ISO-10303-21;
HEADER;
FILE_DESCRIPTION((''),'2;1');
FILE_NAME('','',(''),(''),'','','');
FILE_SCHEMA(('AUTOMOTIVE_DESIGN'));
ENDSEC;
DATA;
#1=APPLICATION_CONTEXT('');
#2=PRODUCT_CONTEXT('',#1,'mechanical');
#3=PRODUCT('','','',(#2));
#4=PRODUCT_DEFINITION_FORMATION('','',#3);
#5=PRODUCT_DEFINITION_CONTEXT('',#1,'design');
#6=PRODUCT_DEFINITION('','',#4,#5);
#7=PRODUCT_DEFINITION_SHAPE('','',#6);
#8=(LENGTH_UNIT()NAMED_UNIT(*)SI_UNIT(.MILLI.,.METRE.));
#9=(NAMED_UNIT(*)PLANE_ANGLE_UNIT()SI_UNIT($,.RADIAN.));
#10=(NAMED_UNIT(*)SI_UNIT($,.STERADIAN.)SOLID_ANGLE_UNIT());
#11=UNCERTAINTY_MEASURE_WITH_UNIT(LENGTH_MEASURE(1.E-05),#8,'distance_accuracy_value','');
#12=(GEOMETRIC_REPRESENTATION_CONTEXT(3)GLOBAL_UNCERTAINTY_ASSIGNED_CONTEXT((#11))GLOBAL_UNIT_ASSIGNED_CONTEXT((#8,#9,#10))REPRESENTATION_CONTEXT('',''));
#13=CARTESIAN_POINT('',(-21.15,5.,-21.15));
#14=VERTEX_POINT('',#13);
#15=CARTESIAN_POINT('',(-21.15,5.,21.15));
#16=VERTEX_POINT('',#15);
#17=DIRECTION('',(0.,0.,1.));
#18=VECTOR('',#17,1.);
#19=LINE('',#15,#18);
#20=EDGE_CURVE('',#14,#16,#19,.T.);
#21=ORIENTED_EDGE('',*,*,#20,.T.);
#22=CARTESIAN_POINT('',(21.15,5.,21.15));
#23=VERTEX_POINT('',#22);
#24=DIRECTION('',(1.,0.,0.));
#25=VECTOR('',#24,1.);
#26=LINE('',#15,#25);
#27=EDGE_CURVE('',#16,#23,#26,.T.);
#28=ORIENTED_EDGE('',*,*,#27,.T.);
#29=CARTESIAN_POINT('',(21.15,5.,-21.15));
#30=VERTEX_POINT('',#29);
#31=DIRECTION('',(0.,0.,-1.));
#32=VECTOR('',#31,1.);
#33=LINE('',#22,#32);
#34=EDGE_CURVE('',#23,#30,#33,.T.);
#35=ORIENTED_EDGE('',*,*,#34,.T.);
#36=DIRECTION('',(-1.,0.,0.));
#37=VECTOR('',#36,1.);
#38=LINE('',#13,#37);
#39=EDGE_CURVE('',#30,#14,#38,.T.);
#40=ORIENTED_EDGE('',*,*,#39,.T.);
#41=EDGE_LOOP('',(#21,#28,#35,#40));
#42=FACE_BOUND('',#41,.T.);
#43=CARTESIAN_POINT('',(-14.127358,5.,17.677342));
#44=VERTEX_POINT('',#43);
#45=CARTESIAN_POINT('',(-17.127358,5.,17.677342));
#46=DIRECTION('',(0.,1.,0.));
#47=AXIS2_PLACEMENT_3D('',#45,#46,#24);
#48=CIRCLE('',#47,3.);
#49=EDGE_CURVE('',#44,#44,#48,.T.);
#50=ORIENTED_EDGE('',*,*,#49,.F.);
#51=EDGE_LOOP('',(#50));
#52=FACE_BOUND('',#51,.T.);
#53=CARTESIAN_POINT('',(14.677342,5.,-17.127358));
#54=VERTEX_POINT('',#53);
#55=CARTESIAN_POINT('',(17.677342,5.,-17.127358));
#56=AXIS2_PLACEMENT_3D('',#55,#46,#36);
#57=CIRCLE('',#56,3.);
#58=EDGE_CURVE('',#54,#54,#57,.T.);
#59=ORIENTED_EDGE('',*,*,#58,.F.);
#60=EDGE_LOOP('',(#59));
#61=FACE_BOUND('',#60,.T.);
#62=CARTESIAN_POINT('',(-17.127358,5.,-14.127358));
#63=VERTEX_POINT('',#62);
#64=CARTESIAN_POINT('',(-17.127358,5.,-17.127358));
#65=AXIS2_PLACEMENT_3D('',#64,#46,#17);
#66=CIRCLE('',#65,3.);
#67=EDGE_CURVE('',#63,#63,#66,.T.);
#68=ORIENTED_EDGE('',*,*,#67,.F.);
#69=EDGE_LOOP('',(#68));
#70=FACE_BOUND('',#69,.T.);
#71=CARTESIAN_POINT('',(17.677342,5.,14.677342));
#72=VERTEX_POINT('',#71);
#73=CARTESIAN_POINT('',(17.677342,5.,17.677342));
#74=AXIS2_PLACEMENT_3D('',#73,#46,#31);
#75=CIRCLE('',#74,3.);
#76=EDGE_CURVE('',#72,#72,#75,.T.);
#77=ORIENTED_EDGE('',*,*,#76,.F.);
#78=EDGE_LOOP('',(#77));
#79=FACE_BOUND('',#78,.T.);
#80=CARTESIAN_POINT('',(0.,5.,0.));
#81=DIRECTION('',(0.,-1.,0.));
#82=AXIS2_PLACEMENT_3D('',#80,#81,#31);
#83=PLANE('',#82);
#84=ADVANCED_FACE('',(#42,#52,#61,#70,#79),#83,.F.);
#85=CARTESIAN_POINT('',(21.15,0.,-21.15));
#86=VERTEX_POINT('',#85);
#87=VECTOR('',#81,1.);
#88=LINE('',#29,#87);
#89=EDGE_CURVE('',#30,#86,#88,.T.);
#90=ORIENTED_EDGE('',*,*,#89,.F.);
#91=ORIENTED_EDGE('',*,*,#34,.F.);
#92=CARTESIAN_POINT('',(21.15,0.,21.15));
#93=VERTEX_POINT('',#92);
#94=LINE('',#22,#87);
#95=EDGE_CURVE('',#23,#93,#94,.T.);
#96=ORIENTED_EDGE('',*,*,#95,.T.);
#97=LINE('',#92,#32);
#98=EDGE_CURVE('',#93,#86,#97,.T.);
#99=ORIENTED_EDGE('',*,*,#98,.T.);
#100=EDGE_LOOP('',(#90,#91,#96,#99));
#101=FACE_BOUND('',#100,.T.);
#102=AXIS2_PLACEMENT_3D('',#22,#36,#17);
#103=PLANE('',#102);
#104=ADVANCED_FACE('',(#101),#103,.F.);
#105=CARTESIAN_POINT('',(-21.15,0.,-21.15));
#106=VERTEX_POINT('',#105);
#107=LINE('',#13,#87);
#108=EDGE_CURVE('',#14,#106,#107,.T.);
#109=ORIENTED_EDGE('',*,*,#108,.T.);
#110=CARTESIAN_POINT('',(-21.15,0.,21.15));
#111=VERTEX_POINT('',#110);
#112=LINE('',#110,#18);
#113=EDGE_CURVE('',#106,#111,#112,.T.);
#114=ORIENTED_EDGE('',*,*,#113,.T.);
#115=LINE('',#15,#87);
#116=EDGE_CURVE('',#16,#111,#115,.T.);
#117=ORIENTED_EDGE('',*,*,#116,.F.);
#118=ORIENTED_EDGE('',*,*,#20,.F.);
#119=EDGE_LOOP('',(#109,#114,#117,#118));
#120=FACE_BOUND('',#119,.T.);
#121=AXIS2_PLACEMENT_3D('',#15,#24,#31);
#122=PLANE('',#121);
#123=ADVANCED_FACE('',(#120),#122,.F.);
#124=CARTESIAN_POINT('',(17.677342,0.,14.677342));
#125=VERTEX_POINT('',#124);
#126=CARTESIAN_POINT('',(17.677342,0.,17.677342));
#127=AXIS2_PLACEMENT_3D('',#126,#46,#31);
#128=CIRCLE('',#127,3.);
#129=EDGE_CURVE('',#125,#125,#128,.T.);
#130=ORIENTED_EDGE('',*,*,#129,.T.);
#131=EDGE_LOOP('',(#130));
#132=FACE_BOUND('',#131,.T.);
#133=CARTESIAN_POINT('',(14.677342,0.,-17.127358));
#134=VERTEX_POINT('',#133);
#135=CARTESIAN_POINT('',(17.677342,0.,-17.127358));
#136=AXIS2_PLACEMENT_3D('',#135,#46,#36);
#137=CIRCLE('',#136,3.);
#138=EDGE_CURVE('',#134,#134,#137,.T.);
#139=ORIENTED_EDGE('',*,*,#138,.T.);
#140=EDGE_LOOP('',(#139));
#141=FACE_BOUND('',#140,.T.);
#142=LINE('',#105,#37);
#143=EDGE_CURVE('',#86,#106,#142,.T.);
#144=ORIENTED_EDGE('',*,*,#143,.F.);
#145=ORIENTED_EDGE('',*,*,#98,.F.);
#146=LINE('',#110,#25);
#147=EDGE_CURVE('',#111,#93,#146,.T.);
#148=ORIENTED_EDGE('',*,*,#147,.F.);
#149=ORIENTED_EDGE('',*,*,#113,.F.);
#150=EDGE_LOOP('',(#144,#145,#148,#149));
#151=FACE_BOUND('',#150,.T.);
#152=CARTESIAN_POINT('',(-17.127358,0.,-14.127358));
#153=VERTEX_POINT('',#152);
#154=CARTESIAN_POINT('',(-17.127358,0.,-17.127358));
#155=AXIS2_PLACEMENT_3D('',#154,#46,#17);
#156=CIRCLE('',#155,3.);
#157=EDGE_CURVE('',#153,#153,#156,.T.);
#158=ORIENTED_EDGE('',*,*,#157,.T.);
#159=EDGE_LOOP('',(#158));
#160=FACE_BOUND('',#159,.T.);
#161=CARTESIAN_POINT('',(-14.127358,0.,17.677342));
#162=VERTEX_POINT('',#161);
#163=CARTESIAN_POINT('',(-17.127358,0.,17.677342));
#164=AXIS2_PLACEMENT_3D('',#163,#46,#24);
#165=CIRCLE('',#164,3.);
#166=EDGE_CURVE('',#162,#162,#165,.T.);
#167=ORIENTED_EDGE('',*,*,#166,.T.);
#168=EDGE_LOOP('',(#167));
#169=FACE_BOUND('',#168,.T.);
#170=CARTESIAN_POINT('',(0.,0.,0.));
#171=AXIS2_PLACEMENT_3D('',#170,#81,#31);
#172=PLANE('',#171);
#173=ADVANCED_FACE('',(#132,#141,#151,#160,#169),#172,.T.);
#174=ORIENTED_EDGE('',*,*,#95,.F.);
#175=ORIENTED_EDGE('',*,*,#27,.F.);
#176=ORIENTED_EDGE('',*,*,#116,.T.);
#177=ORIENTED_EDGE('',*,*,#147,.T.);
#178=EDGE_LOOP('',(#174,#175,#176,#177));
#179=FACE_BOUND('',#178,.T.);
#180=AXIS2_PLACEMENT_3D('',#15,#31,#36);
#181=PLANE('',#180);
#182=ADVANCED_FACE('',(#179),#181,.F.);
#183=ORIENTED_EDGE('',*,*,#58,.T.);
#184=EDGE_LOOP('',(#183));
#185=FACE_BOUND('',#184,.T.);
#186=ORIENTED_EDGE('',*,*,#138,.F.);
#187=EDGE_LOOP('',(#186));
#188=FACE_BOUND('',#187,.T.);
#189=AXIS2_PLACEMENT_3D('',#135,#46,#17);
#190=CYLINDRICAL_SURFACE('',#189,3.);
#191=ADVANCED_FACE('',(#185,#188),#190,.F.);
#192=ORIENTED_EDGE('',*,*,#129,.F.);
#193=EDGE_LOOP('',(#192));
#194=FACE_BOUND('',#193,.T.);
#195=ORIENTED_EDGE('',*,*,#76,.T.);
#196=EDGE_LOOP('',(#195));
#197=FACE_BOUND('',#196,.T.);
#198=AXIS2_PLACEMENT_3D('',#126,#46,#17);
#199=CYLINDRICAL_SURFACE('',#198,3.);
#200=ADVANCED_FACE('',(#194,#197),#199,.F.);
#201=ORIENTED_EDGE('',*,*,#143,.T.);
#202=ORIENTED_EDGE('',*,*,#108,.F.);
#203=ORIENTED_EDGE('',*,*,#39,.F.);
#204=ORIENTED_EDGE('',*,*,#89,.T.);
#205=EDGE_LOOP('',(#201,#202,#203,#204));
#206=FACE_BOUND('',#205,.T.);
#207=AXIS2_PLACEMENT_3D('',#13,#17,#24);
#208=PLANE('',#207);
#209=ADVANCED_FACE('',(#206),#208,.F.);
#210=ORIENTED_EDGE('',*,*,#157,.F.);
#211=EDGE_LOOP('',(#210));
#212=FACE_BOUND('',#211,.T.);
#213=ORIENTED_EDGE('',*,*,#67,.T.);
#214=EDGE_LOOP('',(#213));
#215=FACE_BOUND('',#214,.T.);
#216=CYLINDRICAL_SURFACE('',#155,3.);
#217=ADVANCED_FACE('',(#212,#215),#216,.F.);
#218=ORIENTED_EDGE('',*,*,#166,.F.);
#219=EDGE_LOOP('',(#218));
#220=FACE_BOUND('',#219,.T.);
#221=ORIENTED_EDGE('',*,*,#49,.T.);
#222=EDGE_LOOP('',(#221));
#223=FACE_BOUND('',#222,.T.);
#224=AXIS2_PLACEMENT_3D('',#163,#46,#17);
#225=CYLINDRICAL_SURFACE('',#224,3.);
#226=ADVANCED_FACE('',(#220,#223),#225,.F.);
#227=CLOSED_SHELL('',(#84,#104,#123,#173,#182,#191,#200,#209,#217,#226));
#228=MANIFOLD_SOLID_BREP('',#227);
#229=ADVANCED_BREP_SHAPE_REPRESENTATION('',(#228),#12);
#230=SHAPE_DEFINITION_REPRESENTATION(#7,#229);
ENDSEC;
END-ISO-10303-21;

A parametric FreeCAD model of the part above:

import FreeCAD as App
import Part
import Sketcher
Q = App.Units.Quantity

doc = App.newDocument("Part")
body = doc.addObject("PartDesign::Body", "Body")

# Sketch on XZ plane
sketch1 = doc.addObject("Sketcher::SketchObject", "Sketch")
body.addObject(sketch1)
sketch1.AttachmentSupport = (doc.XZ_Plane, [""])
sketch1.MapMode = "FlatFace"
sketch1.addGeometry([
    Part.LineSegment(App.Vector(-21, -21, 0), App.Vector(-21, 21, 0)),
    Part.LineSegment(App.Vector(-21, 21, 0), App.Vector(21, 21, 0)),
    Part.LineSegment(App.Vector(21, 21, 0), App.Vector(21, -21, 0)),
    Part.LineSegment(App.Vector(21, -21, 0), App.Vector(-21, -21, 0)),
], False)
sketch1.addConstraint([
    Sketcher.Constraint("Coincident", 0, 2, 1, 1),
    Sketcher.Constraint("Coincident", 1, 2, 2, 1),
    Sketcher.Constraint("Coincident", 2, 2, 3, 1),
    Sketcher.Constraint("Coincident", 3, 2, 0, 1),
    Sketcher.Constraint("Vertical", 0),
    Sketcher.Constraint("Horizontal", 1),
    Sketcher.Constraint("Vertical", 2),
    Sketcher.Constraint("Horizontal", 3),
    Sketcher.Constraint("Symmetric", 0, 2, 2, 2, -1, 1),
    Sketcher.Constraint("Equal", 3, 0),
    Sketcher.Constraint("DistanceX", 1, 1, 1, 2, Q("42.3 mm")),
])
pad1 = doc.addObject("PartDesign::Pad", "Pad")
body.addObject(pad1)
pad1.Profile = sketch1
pad1.Length = 5
pad1.Reversed = True

# Sketch on XZ plane
sketch2 = doc.addObject("Sketcher::SketchObject", "Sketch001")
body.addObject(sketch2)
sketch2.AttachmentSupport = (doc.XZ_Plane, [""])
sketch2.MapMode = "FlatFace"
sketch2.AttachmentOffset = App.Placement(App.Vector(0, 0, -5), App.Rotation())
sketch2.addGeometry(Part.Circle(App.Vector(-17.1, -17.1, 0), App.Vector(0, 0, 1), 3), False)
sketch2.addConstraint([
    Sketcher.Constraint("Diameter", 0, Q("6 mm")),
    Sketcher.Constraint("DistanceX", 0, 3, -1, 1, Q("17.127358 mm")),
    Sketcher.Constraint("DistanceY", 0, 3, -1, 1, Q("17.127358 mm")),
])
pocket1 = doc.addObject("PartDesign::Pocket", "Pocket")
body.addObject(pocket1)
pocket1.Profile = sketch2
pocket1.Length = 5
pocket1.Reversed = True
doc.recompute()

datumline = doc.addObject("PartDesign::Line", "DatumLine")
body.addObject(datumline)
datumline.Placement = App.Placement(App.Vector(0.274992, 0, 0.274992), App.Rotation(App.Vector(0, 0, 1), App.Vector(0, 1, 0)))
polarpattern = doc.addObject("PartDesign::PolarPattern", "PolarPattern")
body.addObject(polarpattern)
polarpattern.Originals = [pocket1]
polarpattern.Axis = (datumline, [""])
polarpattern.Angle = 360
polarpattern.Occurrences = 4
body.Tip = polarpattern

doc.recompute()
